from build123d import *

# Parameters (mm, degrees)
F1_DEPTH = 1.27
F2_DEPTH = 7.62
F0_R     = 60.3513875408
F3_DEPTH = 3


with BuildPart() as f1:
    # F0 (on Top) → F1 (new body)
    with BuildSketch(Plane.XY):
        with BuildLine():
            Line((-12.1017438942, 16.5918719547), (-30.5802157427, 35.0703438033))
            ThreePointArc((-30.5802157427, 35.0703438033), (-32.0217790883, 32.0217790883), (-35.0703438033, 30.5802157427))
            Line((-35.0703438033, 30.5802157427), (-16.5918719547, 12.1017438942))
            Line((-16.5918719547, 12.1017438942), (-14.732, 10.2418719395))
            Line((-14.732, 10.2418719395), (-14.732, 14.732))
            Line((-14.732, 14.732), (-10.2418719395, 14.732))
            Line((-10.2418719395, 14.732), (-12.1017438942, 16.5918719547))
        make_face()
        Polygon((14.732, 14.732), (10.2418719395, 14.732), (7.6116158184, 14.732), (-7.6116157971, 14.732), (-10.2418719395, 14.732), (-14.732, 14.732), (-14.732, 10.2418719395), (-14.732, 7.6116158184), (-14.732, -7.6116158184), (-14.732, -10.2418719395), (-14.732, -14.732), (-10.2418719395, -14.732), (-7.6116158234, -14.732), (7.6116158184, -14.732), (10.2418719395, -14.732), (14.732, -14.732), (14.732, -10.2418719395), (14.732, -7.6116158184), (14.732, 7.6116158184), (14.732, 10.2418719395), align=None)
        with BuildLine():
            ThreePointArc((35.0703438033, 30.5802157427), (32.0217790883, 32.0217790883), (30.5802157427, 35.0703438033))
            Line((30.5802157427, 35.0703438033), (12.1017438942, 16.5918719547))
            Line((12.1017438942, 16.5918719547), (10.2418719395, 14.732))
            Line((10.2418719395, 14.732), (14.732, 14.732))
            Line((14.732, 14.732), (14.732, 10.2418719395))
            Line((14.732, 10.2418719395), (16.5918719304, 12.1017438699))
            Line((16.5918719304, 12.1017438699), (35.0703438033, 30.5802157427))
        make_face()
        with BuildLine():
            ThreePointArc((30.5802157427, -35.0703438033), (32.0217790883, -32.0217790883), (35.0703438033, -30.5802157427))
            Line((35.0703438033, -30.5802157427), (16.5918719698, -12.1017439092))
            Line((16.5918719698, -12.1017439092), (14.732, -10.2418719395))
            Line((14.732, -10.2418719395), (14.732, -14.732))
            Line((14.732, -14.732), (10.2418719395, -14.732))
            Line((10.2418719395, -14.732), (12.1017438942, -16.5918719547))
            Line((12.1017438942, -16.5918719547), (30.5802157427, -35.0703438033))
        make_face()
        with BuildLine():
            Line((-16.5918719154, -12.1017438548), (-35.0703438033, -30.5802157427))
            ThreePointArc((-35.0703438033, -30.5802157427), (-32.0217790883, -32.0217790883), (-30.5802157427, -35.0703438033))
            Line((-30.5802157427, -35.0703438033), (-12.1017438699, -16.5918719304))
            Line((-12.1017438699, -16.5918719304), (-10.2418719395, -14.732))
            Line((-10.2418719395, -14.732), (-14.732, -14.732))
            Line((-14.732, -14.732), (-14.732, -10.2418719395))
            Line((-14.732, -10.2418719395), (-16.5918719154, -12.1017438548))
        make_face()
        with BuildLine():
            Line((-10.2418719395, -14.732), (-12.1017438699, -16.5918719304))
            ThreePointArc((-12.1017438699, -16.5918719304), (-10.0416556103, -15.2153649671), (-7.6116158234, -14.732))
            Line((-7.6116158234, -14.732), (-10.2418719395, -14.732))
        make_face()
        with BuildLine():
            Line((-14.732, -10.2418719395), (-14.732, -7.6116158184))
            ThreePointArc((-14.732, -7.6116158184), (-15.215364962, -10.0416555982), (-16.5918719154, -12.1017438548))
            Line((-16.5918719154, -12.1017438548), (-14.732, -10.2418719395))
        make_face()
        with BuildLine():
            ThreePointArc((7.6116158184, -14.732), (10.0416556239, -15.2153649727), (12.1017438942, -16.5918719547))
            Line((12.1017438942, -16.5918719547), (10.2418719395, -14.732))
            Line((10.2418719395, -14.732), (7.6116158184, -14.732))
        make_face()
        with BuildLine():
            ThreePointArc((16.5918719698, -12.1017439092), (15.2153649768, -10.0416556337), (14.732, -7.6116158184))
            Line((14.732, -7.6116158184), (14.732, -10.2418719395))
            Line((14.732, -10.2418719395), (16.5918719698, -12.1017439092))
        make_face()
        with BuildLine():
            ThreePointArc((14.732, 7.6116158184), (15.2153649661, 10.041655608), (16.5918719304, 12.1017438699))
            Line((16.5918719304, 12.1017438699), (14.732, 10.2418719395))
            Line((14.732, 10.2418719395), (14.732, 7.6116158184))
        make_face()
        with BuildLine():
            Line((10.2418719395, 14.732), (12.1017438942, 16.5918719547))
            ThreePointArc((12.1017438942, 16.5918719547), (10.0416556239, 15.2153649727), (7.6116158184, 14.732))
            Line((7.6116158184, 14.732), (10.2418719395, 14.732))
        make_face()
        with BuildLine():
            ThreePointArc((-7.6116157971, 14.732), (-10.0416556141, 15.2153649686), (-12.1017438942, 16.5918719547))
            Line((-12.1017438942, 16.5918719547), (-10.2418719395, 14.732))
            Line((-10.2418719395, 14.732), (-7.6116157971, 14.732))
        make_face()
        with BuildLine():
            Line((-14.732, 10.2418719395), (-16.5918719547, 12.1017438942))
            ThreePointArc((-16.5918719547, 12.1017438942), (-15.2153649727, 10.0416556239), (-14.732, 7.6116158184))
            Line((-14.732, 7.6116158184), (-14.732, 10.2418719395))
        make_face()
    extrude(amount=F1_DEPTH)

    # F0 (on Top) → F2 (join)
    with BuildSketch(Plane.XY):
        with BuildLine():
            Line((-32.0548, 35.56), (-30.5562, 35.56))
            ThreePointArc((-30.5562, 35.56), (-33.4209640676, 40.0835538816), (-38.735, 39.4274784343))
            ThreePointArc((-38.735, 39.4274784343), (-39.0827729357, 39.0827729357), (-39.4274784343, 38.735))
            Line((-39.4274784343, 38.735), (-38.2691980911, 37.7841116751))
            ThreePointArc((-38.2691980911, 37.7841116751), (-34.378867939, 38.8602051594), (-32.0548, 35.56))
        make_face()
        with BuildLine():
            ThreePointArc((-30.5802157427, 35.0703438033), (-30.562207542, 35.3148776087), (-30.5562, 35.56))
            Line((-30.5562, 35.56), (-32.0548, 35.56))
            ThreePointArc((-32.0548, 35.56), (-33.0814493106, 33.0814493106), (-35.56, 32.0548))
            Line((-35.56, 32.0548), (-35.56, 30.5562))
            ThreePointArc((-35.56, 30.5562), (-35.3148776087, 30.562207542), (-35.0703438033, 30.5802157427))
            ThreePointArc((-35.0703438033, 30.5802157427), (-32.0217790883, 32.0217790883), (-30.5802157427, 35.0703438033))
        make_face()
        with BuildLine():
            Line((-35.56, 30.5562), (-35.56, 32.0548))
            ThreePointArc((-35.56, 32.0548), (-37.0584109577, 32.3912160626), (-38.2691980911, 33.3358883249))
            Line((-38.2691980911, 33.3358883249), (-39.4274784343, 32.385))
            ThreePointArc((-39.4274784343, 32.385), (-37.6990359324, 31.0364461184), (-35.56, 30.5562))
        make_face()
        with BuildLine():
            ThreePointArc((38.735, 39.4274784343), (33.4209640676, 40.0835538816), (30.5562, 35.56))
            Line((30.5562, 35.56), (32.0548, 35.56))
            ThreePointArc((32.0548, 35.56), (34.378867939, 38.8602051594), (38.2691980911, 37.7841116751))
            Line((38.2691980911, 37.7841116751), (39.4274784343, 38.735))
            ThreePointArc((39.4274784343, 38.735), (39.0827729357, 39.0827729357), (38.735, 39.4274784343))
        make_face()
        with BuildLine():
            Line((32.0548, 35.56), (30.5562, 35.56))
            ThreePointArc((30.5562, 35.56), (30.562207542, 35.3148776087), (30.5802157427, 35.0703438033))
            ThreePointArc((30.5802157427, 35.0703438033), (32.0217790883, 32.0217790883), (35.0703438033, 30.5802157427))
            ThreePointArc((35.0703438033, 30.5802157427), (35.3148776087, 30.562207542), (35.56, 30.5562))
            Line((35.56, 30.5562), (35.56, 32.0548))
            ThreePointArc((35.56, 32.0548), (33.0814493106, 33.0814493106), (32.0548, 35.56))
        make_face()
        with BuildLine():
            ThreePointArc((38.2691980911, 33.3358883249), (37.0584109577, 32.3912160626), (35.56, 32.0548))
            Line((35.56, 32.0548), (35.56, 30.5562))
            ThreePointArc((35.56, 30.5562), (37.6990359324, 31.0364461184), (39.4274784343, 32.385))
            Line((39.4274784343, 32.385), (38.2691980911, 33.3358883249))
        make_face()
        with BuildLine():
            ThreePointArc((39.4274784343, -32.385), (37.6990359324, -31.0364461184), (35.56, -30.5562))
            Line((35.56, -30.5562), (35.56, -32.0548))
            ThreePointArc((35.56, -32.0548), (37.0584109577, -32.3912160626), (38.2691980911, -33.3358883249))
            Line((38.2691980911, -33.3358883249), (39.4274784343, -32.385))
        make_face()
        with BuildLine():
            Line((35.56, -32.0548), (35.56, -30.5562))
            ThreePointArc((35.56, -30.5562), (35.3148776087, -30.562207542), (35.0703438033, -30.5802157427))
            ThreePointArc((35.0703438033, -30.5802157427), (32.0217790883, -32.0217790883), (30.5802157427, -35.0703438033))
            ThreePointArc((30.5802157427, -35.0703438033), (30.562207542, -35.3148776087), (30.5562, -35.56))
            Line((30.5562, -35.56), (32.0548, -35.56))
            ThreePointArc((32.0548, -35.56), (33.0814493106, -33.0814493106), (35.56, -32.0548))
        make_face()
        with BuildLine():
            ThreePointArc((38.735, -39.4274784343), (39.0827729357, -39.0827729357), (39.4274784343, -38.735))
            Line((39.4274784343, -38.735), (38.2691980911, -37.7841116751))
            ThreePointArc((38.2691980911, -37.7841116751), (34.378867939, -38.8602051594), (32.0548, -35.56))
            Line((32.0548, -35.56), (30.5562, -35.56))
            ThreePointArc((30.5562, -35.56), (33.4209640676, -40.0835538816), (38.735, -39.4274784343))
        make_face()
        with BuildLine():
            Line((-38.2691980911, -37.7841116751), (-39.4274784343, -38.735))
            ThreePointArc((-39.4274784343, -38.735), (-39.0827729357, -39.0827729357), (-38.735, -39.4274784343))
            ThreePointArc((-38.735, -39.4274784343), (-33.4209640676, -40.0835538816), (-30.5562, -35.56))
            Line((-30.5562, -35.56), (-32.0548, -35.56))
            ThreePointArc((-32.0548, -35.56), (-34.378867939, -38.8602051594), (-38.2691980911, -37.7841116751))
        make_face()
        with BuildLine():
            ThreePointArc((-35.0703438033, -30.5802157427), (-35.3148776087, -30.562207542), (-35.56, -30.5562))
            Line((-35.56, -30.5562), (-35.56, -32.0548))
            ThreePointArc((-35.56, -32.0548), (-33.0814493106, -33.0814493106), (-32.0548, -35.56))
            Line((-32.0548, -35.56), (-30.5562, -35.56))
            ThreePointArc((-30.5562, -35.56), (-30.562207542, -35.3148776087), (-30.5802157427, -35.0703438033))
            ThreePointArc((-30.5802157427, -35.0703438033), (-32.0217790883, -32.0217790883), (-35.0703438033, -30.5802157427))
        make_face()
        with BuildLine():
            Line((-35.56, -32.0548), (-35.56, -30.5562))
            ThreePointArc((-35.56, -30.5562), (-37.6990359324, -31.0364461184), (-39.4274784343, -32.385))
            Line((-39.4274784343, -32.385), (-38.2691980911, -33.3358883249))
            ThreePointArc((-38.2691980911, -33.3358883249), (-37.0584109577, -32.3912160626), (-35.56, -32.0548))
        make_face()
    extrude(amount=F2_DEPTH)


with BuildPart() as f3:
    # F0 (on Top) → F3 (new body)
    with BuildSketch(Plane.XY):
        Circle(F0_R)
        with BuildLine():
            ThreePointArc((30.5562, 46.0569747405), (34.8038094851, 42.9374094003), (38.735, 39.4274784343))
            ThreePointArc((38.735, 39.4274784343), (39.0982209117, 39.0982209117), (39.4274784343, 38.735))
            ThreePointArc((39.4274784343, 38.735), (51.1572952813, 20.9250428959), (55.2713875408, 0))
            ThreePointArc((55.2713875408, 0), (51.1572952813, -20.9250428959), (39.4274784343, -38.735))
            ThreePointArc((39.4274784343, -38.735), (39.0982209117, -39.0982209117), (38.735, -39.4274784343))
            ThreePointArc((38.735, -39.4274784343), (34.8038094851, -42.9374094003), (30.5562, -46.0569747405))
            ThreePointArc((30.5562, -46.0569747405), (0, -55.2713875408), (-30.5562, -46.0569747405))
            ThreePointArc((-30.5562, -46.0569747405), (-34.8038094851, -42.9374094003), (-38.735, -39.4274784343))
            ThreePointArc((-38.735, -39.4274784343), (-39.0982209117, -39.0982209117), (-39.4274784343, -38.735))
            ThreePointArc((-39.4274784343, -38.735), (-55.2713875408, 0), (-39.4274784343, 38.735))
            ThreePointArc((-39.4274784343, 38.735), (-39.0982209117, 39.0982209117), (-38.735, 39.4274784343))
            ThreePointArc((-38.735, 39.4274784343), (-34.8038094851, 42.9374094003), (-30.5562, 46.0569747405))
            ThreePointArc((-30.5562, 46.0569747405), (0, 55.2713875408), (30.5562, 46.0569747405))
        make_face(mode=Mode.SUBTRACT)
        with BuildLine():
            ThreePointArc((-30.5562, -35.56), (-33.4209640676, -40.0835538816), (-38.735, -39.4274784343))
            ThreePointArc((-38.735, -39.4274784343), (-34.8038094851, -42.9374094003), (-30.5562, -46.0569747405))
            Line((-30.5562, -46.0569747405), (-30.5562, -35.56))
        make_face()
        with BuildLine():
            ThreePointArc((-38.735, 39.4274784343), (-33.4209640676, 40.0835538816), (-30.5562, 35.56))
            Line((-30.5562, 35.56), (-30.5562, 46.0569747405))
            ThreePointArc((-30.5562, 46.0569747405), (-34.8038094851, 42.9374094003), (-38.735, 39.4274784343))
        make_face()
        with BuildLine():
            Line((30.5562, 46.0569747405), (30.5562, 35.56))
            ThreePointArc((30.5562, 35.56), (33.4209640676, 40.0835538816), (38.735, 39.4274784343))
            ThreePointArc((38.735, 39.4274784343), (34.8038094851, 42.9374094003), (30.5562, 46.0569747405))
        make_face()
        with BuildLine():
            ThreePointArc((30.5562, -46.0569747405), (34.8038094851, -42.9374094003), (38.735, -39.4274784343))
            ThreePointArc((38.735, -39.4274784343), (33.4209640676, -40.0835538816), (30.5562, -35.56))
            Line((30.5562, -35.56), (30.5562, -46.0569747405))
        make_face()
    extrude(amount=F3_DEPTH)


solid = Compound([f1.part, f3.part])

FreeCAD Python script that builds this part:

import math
import FreeCAD as App
import Part
import Sketcher
Q = App.Units.Quantity

doc = App.newDocument("Part")
params = doc.addObject("Spreadsheet::Sheet", "Params")
for row, (alias, value) in enumerate([
    ("sketch1_radius", "0.25 in"),
    ("sketch1_radius2", "0.197 in"),
    ("pad1_length", "0.05 in"),
    ("sketch2_radius", "0.197 in"),
    ("sketch2_radius2", "0.138 in"),
    ("pad2_length", "0.3 in"),
    ("sketch3_radius", "0.197 in"),
    ("pad3_length", "3 mm"),
], start=1):
    params.set(f"A{row}", alias)
    params.set(f"B{row}", "=" + value)
    params.setAlias(f"B{row}", alias)

body = doc.addObject("PartDesign::Body", "Body")

# Sketch on XY plane
sketch1 = body.newObject("Sketcher::SketchObject", "Sketch")
sketch1.AttachmentSupport = (doc.getObject("XY_Plane"), [""])
sketch1.MapMode = "FlatFace"
sketch1.addGeometry([
    Part.LineSegment(App.Vector(-12.101744, 16.591872, 0), App.Vector(-30.580216, 35.070344, 0)),  # 0
    Part.ArcOfCircle(Part.Circle(App.Vector(-35.56, 35.56, 0), App.Vector(0, 0, 1), 5.0038), math.radians(-84.384227), math.radians(-5.615773)),  # 1
    Part.LineSegment(App.Vector(-35.070344, 30.580216, 0), App.Vector(-16.591872, 12.101744, 0)),  # 2
    Part.ArcOfCircle(Part.Circle(App.Vector(-21.082, 7.611616, 0), App.Vector(0, 0, 1), 6.35), math.radians(0), math.radians(45)),  # 3
    Part.LineSegment(App.Vector(-14.732, 7.611616, 0), App.Vector(-14.732, -7.611616, 0)),  # 4
    Part.ArcOfCircle(Part.Circle(App.Vector(-21.082, -7.611616, 0), App.Vector(0, 0, 1), 6.35), math.radians(-45), math.radians(0)),  # 5
    Part.LineSegment(App.Vector(-16.591872, -12.101744, 0), App.Vector(-35.070344, -30.580216, 0)),  # 6
    Part.ArcOfCircle(Part.Circle(App.Vector(-35.56, -35.56, 0), App.Vector(0, 0, 1), 5.0038), math.radians(5.615773), math.radians(84.384227)),  # 7
    Part.LineSegment(App.Vector(-30.580216, -35.070344, 0), App.Vector(-12.101744, -16.591872, 0)),  # 8
    Part.ArcOfCircle(Part.Circle(App.Vector(-7.611616, -21.082, 0), App.Vector(0, 0, 1), 6.35), math.radians(90), math.radians(135)),  # 9
    Part.LineSegment(App.Vector(-7.611616, -14.732, 0), App.Vector(7.611616, -14.732, 0)),  # 10
    Part.ArcOfCircle(Part.Circle(App.Vector(7.611616, -21.082, 0), App.Vector(0, 0, 1), 6.35), math.radians(45), math.radians(90)),  # 11
    Part.LineSegment(App.Vector(12.101744, -16.591872, 0), App.Vector(30.580216, -35.070344, 0)),  # 12
    Part.ArcOfCircle(Part.Circle(App.Vector(35.56, -35.56, 0), App.Vector(0, 0, 1), 5.0038), math.radians(95.615773), math.radians(174.384227)),  # 13
    Part.LineSegment(App.Vector(35.070344, -30.580216, 0), App.Vector(16.591872, -12.101744, 0)),  # 14
    Part.ArcOfCircle(Part.Circle(App.Vector(21.082, -7.611616, 0), App.Vector(0, 0, 1), 6.35), math.radians(180), math.radians(225)),  # 15
    Part.LineSegment(App.Vector(14.732, -7.611616, 0), App.Vector(14.732, 7.611616, 0)),  # 16
    Part.ArcOfCircle(Part.Circle(App.Vector(21.082, 7.611616, 0), App.Vector(0, 0, 1), 6.35), math.radians(135), math.radians(180)),  # 17
    Part.LineSegment(App.Vector(16.591872, 12.101744, 0), App.Vector(35.070344, 30.580216, 0)),  # 18
    Part.ArcOfCircle(Part.Circle(App.Vector(35.56, 35.56, 0), App.Vector(0, 0, 1), 5.0038), math.radians(-174.384227), math.radians(-95.615773)),  # 19
    Part.LineSegment(App.Vector(30.580216, 35.070344, 0), App.Vector(12.101744, 16.591872, 0)),  # 20
    Part.ArcOfCircle(Part.Circle(App.Vector(7.611616, 21.082, 0), App.Vector(0, 0, 1), 6.35), math.radians(-90), math.radians(-45)),  # 21
    Part.LineSegment(App.Vector(7.611616, 14.732, 0), App.Vector(-7.611616, 14.732, 0)),  # 22
    Part.ArcOfCircle(Part.Circle(App.Vector(-7.611616, 21.082, 0), App.Vector(0, 0, 1), 6.35), math.radians(-135), math.radians(-90)),  # 23
], False)
sketch1.addConstraint([
    Sketcher.Constraint("Coincident", 0, 2, 1, 2),
    Sketcher.Constraint("Coincident", 1, 1, 2, 1),
    Sketcher.Constraint("Tangent", 2, 2, 3, 2),
    Sketcher.Constraint("Tangent", 3, 1, 4, 1),
    Sketcher.Constraint("Tangent", 4, 2, 5, 2),
    Sketcher.Constraint("Tangent", 5, 1, 6, 1),
    Sketcher.Constraint("Coincident", 6, 2, 7, 2),
    Sketcher.Constraint("Coincident", 7, 1, 8, 1),
    Sketcher.Constraint("Tangent", 8, 2, 9, 2),
    Sketcher.Constraint("Tangent", 9, 1, 10, 1),
    Sketcher.Constraint("Tangent", 10, 2, 11, 2),
    Sketcher.Constraint("Tangent", 11, 1, 12, 1),
    Sketcher.Constraint("Coincident", 12, 2, 13, 2),
    Sketcher.Constraint("Coincident", 13, 1, 14, 1),
    Sketcher.Constraint("Tangent", 14, 2, 15, 2),
    Sketcher.Constraint("Tangent", 15, 1, 16, 1),
    Sketcher.Constraint("Tangent", 16, 2, 17, 2),
    Sketcher.Constraint("Tangent", 17, 1, 18, 1),
    Sketcher.Constraint("Coincident", 18, 2, 19, 2),
    Sketcher.Constraint("Coincident", 19, 1, 20, 1),
    Sketcher.Constraint("Tangent", 20, 2, 21, 2),
    Sketcher.Constraint("Tangent", 21, 1, 22, 1),
    Sketcher.Constraint("Tangent", 22, 2, 23, 2),
    Sketcher.Constraint("Tangent", 23, 1, 0, 1),
    Sketcher.Constraint("Vertical", 4),
    Sketcher.Constraint("Horizontal", 10),
    Sketcher.Constraint("Vertical", 16),
    Sketcher.Constraint("Horizontal", 22),
    Sketcher.Constraint("Equal", 3, 5),
    Sketcher.Constraint("Equal", 1, 7),
    Sketcher.Constraint("Equal", 5, 9),
    Sketcher.Constraint("Equal", 9, 11),
    Sketcher.Constraint("Equal", 7, 13),
    Sketcher.Constraint("Equal", 11, 15),
    Sketcher.Constraint("Equal", 15, 17),
    Sketcher.Constraint("Equal", 13, 19),
    Sketcher.Constraint("Equal", 17, 21),
    Sketcher.Constraint("Equal", 21, 23),
    Sketcher.Constraint("Symmetric", 1, 3, 13, 3, -1, 1),
    Sketcher.Constraint("Symmetric", 3, 3, 15, 3, -1, 1),
    Sketcher.Constraint("Symmetric", 7, 3, 19, 3, -1, 1),
    Sketcher.Constraint("Symmetric", 9, 3, 21, 3, -1, 1),
    Sketcher.Constraint("Symmetric", 5, 1, 17, 1, -1, 1),
    Sketcher.Constraint("Symmetric", 11, 1, 23, 1, -1, 1),
    Sketcher.Constraint("Symmetric", 7, 3, 13, 3, -2),
    Sketcher.Constraint("Symmetric", 8, 2, 11, 1, -2),
    Sketcher.Constraint("Symmetric", 5, 1, 14, 2, -2),
    Sketcher.Constraint("Parallel", 0, 2),
    Sketcher.Constraint("Perpendicular", 2, 6),
    Sketcher.Constraint("Parallel", 6, 8),
    Sketcher.Constraint("Parallel", 18, 20),
    Sketcher.Constraint("Equal", 22, 4),
    Sketcher.Constraint("Equal", 0, 2),
    Sketcher.Constraint("Radius", 3, Q("0.25 in")),
    Sketcher.Constraint("Radius", 1, Q("0.197 in")),
    Sketcher.Constraint("DistanceX", 1, 3, -1, 1, Q("1.4 in")),
    Sketcher.Constraint("DistanceY", -1, 1, 1, 3, Q("1.4 in")),
    Sketcher.Constraint("DistanceX", 3, 3, -1, 1, Q("0.83 in")),
    Sketcher.Constraint("DistanceX", 10, 1, 10, 2, 15.223232),
])
sketch1.setExpression("Constraints[53]", "Params.sketch1_radius")
sketch1.setExpression("Constraints[54]", "Params.sketch1_radius2")
pad1 = body.newObject("PartDesign::Pad", "Pad")
pad1.Profile = sketch1
pad1.setExpression("Length", "Params.pad1_length")

# Sketch on XY plane
sketch2 = body.newObject("Sketcher::SketchObject", "Sketch001")
sketch2.AttachmentSupport = (doc.getObject("XY_Plane"), [""])
sketch2.MapMode = "FlatFace"
sketch2.addGeometry([
    Part.ArcOfCircle(Part.Circle(App.Vector(-35.56, 35.56, 0), App.Vector(0, 0, 1), 5.0038), math.radians(0), math.radians(129.384227)),  # 0
    Part.ArcOfCircle(Part.Circle(App.Vector(0, 0, 0), App.Vector(0, 0, 1), 55.271388), math.radians(134.492403), math.radians(135.507597)),  # 1
    Part.LineSegment(App.Vector(-39.427478, 38.735, 0), App.Vector(-38.269198, 37.784112, 0)),  # 2
    Part.ArcOfCircle(Part.Circle(App.Vector(-35.56, 35.56, 0), App.Vector(0, 0, 1), 3.5052), math.radians(0), math.radians(140.615773)),  # 3
    Part.ArcOfCircle(Part.Circle(App.Vector(-35.56, 35.56, 0), App.Vector(0, 0, 1), 3.5052), math.radians(-90), math.radians(0)),  # 4
    Part.ArcOfCircle(Part.Circle(App.Vector(-35.56, 35.56, 0), App.Vector(0, 0, 1), 3.5052), math.radians(-140.615773), math.radians(-90)),  # 5
    Part.LineSegment(App.Vector(-38.269198, 33.335888, 0), App.Vector(-39.427478, 32.385, 0)),  # 6
    Part.ArcOfCircle(Part.Circle(App.Vector(-35.56, 35.56, 0), App.Vector(0, 0, 1), 5.0038), math.radians(-140.615773), math.radians(-90)),  # 7
    Part.ArcOfCircle(Part.Circle(App.Vector(-35.56, 35.56, 0), App.Vector(0, 0, 1), 5.0038), math.radians(-90), math.radians(-84.384227)),  # 8
    Part.ArcOfCircle(Part.Circle(App.Vector(-35.56, 35.56, 0), App.Vector(0, 0, 1), 5.0038), math.radians(-84.384227), math.radians(-5.615773)),  # 9
    Part.ArcOfCircle(Part.Circle(App.Vector(-35.56, 35.56, 0), App.Vector(0, 0, 1), 5.0038), math.radians(-5.615773), math.radians(0)),  # 10
    Part.ArcOfCircle(Part.Circle(App.Vector(35.56, 35.56, 0), App.Vector(0, 0, 1), 5.0038), math.radians(50.615773), math.radians(180)),  # 11
    Part.ArcOfCircle(Part.Circle(App.Vector(35.56, 35.56, 0), App.Vector(0, 0, 1), 5.0038), math.radians(180), math.radians(185.615773)),  # 12
    Part.ArcOfCircle(Part.Circle(App.Vector(35.56, 35.56, 0), App.Vector(0, 0, 1), 5.0038), math.radians(-174.384227), math.radians(-95.615773)),  # 13
    Part.ArcOfCircle(Part.Circle(App.Vector(35.56, 35.56, 0), App.Vector(0, 0, 1), 5.0038), math.radians(-95.615773), math.radians(-90)),  # 14
    Part.ArcOfCircle(Part.Circle(App.Vector(35.56, 35.56, 0), App.Vector(0, 0, 1), 5.0038), math.radians(-90), math.radians(-39.384227)),  # 15
    Part.LineSegment(App.Vector(39.427478, 32.385, 0), App.Vector(38.269198, 33.335888, 0)),  # 16
    Part.ArcOfCircle(Part.Circle(App.Vector(35.56, 35.56, 0), App.Vector(0, 0, 1), 3.5052), math.radians(-90), math.radians(-39.384227)),  # 17
    Part.ArcOfCircle(Part.Circle(App.Vector(35.56, 35.56, 0), App.Vector(0, 0, 1), 3.5052), math.radians(180), math.radians(270)),  # 18
    Part.ArcOfCircle(Part.Circle(App.Vector(35.56, 35.56, 0), App.Vector(0, 0, 1), 3.5052), math.radians(39.384227), math.radians(180)),  # 19
    Part.LineSegment(App.Vector(38.269198, 37.784112, 0), App.Vector(39.427478, 38.735, 0)),  # 20
    Part.ArcOfCircle(Part.Circle(App.Vector(0, 0, 0), App.Vector(0, 0, 1), 55.271388), math.radians(44.492403), math.radians(45.507597)),  # 21
    Part.ArcOfCircle(Part.Circle(App.Vector(35.56, -35.56, 0), App.Vector(0, 0, 1), 5.0038), math.radians(39.384227), math.radians(90)),  # 22
    Part.ArcOfCircle(Part.Circle(App.Vector(35.56, -35.56, 0), App.Vector(0, 0, 1), 5.0038), math.radians(90), math.radians(95.615773)),  # 23
    Part.ArcOfCircle(Part.Circle(App.Vector(35.56, -35.56, 0), App.Vector(0, 0, 1), 5.0038), math.radians(95.615773), math.radians(174.384227)),  # 24
    Part.ArcOfCircle(Part.Circle(App.Vector(35.56, -35.56, 0), App.Vector(0, 0, 1), 5.0038), math.radians(174.384227), math.radians(180)),  # 25
    Part.ArcOfCircle(Part.Circle(App.Vector(35.56, -35.56, 0), App.Vector(0, 0, 1), 5.0038), math.radians(180), math.radians(309.384227)),  # 26
    Part.ArcOfCircle(Part.Circle(App.Vector(0, 0, 0), App.Vector(0, 0, 1), 55.271388), math.radians(-45.507597), math.radians(-44.492403)),  # 27
    Part.LineSegment(App.Vector(39.427478, -38.735, 0), App.Vector(38.269198, -37.784112, 0)),  # 28
    Part.ArcOfCircle(Part.Circle(App.Vector(35.56, -35.56, 0), App.Vector(0, 0, 1), 3.5052), math.radians(180), math.radians(320.615773)),  # 29
    Part.ArcOfCircle(Part.Circle(App.Vector(35.56, -35.56, 0), App.Vector(0, 0, 1), 3.5052), math.radians(90), math.radians(180)),  # 30
    Part.ArcOfCircle(Part.Circle(App.Vector(35.56, -35.56, 0), App.Vector(0, 0, 1), 3.5052), math.radians(39.384227), math.radians(90)),  # 31
    Part.LineSegment(App.Vector(38.269198, -33.335888, 0), App.Vector(39.427478, -32.385, 0)),  # 32
    Part.LineSegment(App.Vector(-38.269198, -37.784112, 0), App.Vector(-39.427478, -38.735, 0)),  # 33
    Part.ArcOfCircle(Part.Circle(App.Vector(0, 0, 0), App.Vector(0, 0, 1), 55.271388), math.radians(-135.507597), math.radians(-134.492403)),  # 34
    Part.ArcOfCircle(Part.Circle(App.Vector(-35.56, -35.56, 0), App.Vector(0, 0, 1), 5.0038), math.radians(-129.384227), math.radians(0)),  # 35
    Part.ArcOfCircle(Part.Circle(App.Vector(-35.56, -35.56, 0), App.Vector(0, 0, 1), 5.0038), math.radians(0), math.radians(5.615773)),  # 36
    Part.ArcOfCircle(Part.Circle(App.Vector(-35.56, -35.56, 0), App.Vector(0, 0, 1), 5.0038), math.radians(5.615773), math.radians(84.384227)),  # 37
    Part.ArcOfCircle(Part.Circle(App.Vector(-35.56, -35.56, 0), App.Vector(0, 0, 1), 5.0038), math.radians(84.384227), math.radians(90)),  # 38
    Part.ArcOfCircle(Part.Circle(App.Vector(-35.56, -35.56, 0), App.Vector(0, 0, 1), 5.0038), math.radians(90), math.radians(140.615773)),  # 39
    Part.LineSegment(App.Vector(-39.427478, -32.385, 0), App.Vector(-38.269198, -33.335888, 0)),  # 40
    Part.ArcOfCircle(Part.Circle(App.Vector(-35.56, -35.56, 0), App.Vector(0, 0, 1), 3.5052), math.radians(90), math.radians(140.615773)),  # 41
    Part.ArcOfCircle(Part.Circle(App.Vector(-35.56, -35.56, 0), App.Vector(0, 0, 1), 3.5052), math.radians(0), math.radians(90)),  # 42
    Part.ArcOfCircle(Part.Circle(App.Vector(-35.56, -35.56, 0), App.Vector(0, 0, 1), 3.5052), math.radians(-140.615773), math.radians(0)),  # 43
], False)
sketch2.addConstraint([
    Sketcher.Constraint("Coincident", 0, 2, 1, 1),
    Sketcher.Constraint("Coincident", 1, 2, 2, 1),
    Sketcher.Constraint("Coincident", 2, 2, 3, 2),
    Sketcher.Constraint("Tangent", 3, 1, 4, 2),
    Sketcher.Constraint("Tangent", 4, 1, 5, 2),
    Sketcher.Constraint("Coincident", 5, 1, 6, 1),
    Sketcher.Constraint("Coincident", 6, 2, 7, 1),
    Sketcher.Constraint("Tangent", 7, 2, 8, 1),
    Sketcher.Constraint("Tangent", 8, 2, 9, 1),
    Sketcher.Constraint("Tangent", 9, 2, 10, 1),
    Sketcher.Constraint("Tangent", 10, 2, 0, 1),
    Sketcher.Constraint("Tangent", 11, 2, 12, 1),
    Sketcher.Constraint("Tangent", 12, 2, 13, 1),
    Sketcher.Constraint("Tangent", 13, 2, 14, 1),
    Sketcher.Constraint("Tangent", 14, 2, 15, 1),
    Sketcher.Constraint("Coincident", 15, 2, 16, 1),
    Sketcher.Constraint("Coincident", 16, 2, 17, 2),
    Sketcher.Constraint("Tangent", 17, 1, 18, 2),
    Sketcher.Constraint("Tangent", 18, 1, 19, 2),
    Sketcher.Constraint("Coincident", 19, 1, 20, 1),
    Sketcher.Constraint("Coincident", 20, 2, 21, 1),
    Sketcher.Constraint("Coincident", 21, 2, 11, 1),
    Sketcher.Constraint("Tangent", 22, 2, 23, 1),
    Sketcher.Constraint("Tangent", 23, 2, 24, 1),
    Sketcher.Constraint("Tangent", 24, 2, 25, 1),
    Sketcher.Constraint("Tangent", 25, 2, 26, 1),
    Sketcher.Constraint("Coincident", 26, 2, 27, 1),
    Sketcher.Constraint("Coincident", 27, 2, 28, 1),
    Sketcher.Constraint("Coincident", 28, 2, 29, 2),
    Sketcher.Constraint("Tangent", 29, 1, 30, 2),
    Sketcher.Constraint("Tangent", 30, 1, 31, 2),
    Sketcher.Constraint("Coincident", 31, 1, 32, 1),
    Sketcher.Constraint("Coincident", 32, 2, 22, 1),
    Sketcher.Constraint("Coincident", 33, 2, 34, 1),
    Sketcher.Constraint("Coincident", 34, 2, 35, 1),
    Sketcher.Constraint("Tangent", 35, 2, 36, 1),
    Sketcher.Constraint("Tangent", 36, 2, 37, 1),
    Sketcher.Constraint("Tangent", 37, 2, 38, 1),
    Sketcher.Constraint("Tangent", 38, 2, 39, 1),
    Sketcher.Constraint("Coincident", 39, 2, 40, 1),
    Sketcher.Constraint("Coincident", 40, 2, 41, 2),
    Sketcher.Constraint("Tangent", 41, 1, 42, 2),
    Sketcher.Constraint("Tangent", 42, 1, 43, 2),
    Sketcher.Constraint("Coincident", 43, 1, 33, 1),
    Sketcher.Constraint("Coincident", 1, 3, -1, 1),
    Sketcher.Constraint("Coincident", 21, 3, -1, 1),
    Sketcher.Constraint("Coincident", 27, 3, -1, 1),
    Sketcher.Constraint("Coincident", 34, 3, -1, 1),
    Sketcher.Constraint("Coincident", 3, 3, 0, 3),
    Sketcher.Constraint("Coincident", 5, 3, 0, 3),
    Sketcher.Constraint("Coincident", 7, 3, 0, 3),
    Sketcher.Constraint("Coincident", 9, 3, 0, 3),
    Sketcher.Constraint("Coincident", 13, 3, 11, 3),
    Sketcher.Constraint("Coincident", 15, 3, 11, 3),
    Sketcher.Constraint("Coincident", 17, 3, 11, 3),
    Sketcher.Constraint("Coincident", 19, 3, 11, 3),
    Sketcher.Constraint("Coincident", 24, 3, 22, 3),
    Sketcher.Constraint("Coincident", 26, 3, 22, 3),
    Sketcher.Constraint("Coincident", 29, 3, 22, 3),
    Sketcher.Constraint("Coincident", 31, 3, 22, 3),
    Sketcher.Constraint("Coincident", 37, 3, 35, 3),
    Sketcher.Constraint("Coincident", 39, 3, 35, 3),
    Sketcher.Constraint("Coincident", 41, 3, 35, 3),
    Sketcher.Constraint("Coincident", 43, 3, 35, 3),
    Sketcher.Constraint("Equal", 10, 11),
    Sketcher.Constraint("Equal", 5, 17),
    Sketcher.Constraint("Equal", 1, 21),
    Sketcher.Constraint("Equal", 15, 22),
    Sketcher.Constraint("Equal", 21, 27),
    Sketcher.Constraint("Equal", 19, 29),
    Sketcher.Constraint("Equal", 27, 34),
    Sketcher.Constraint("Equal", 26, 35),
    Sketcher.Constraint("Equal", 31, 41),
    Sketcher.Constraint("Symmetric", 0, 3, 22, 3, -1, 1),
    Sketcher.Constraint("Symmetric", 11, 3, 35, 3, -1, 1),
    Sketcher.Constraint("Symmetric", 0, 3, 11, 3, -2),
    Sketcher.Constraint("Parallel", 2, 16),
    Sketcher.Constraint("Parallel", 6, 20),
    Sketcher.Constraint("Parallel", 16, 28),
    Sketcher.Constraint("Parallel", 20, 32),
    Sketcher.Constraint("Parallel", 32, 33),
    Sketcher.Constraint("Parallel", 28, 40),
    Sketcher.Constraint("Horizontal", 19, 3, 3, 1),
    Sketcher.Constraint("Horizontal", 3, 1, 10, 2),
    Sketcher.Constraint("Horizontal", 10, 2, 11, 2),
    Sketcher.Constraint("Horizontal", 9, 2, 12, 2),
    Sketcher.Constraint("Horizontal", 8, 2, 13, 2),
    Sketcher.Constraint("Horizontal", 6, 2, 15, 2),
    Sketcher.Constraint("Horizontal", 5, 1, 16, 2),
    Sketcher.Constraint("Horizontal", 11, 2, 18, 1),
    Sketcher.Constraint("Horizontal", 2, 2, 19, 1),
    Sketcher.Constraint("Horizontal", 43, 3, 25, 2),
    Sketcher.Constraint("Horizontal", 25, 2, 29, 1),
    Sketcher.Constraint("Horizontal", 27, 2, 33, 2),
    Sketcher.Constraint("Horizontal", 29, 1, 35, 2),
    Sketcher.Constraint("Horizontal", 24, 2, 36, 2),
    Sketcher.Constraint("Horizontal", 23, 2, 37, 2),
    Sketcher.Constraint("Horizontal", 32, 2, 39, 2),
    Sketcher.Constraint("Horizontal", 35, 2, 42, 1),
    Sketcher.Constraint("Vertical", 43, 3, 4, 1),
    Sketcher.Constraint("Vertical", 2, 2, 5, 1),
    Sketcher.Constraint("Vertical", 1, 2, 6, 2),
    Sketcher.Constraint("Vertical", 4, 1, 7, 2),
    Sketcher.Constraint("Vertical", 31, 3, 14, 2),
    Sketcher.Constraint("Vertical", 14, 2, 17, 1),
    Sketcher.Constraint("Vertical", 17, 1, 22, 2),
    Sketcher.Constraint("Vertical", 13, 2, 23, 2),
    Sketcher.Constraint("Vertical", 12, 2, 24, 2),
    Sketcher.Constraint("Vertical", 20, 2, 27, 2),
    Sketcher.Constraint("Vertical", 22, 2, 30, 1),
    Sketcher.Constraint("Vertical", 28, 2, 31, 1),
    Sketcher.Constraint("Vertical", 7, 2, 38, 2),
    Sketcher.Constraint("Vertical", 38, 2, 41, 1),
    Sketcher.Constraint("Radius", 0, Q("0.197 in")),
    Sketcher.Constraint("Radius", 3, Q("0.138 in")),
    Sketcher.Constraint("DistanceX", 0, 3, -1, 1, Q("1.4 in")),
    Sketcher.Constraint("DistanceY", -1, 1, 0, 3, Q("1.4 in")),
    Sketcher.Constraint("DistanceX", 0, 2, -1, 1, Q("1.525 in")),
    Sketcher.Constraint("DistanceX", 2, 2, -1, 1, 38.269198),
    Sketcher.Constraint("DistanceX", 8, 2, -1, 1, 35.070344),
    Sketcher.Constraint("DistanceX", 9, 2, -1, 1, 30.580216),
])
sketch2.setExpression("Constraints[113]", "Params.sketch2_radius")
sketch2.setExpression("Constraints[114]", "Params.sketch2_radius2")
pad2 = body.newObject("PartDesign::Pad", "Pad001")
pad2.Profile = sketch2
pad2.setExpression("Length", "Params.pad2_length")
body2 = doc.addObject("PartDesign::Body", "Body001")

# Sketch on XY plane
sketch3 = body2.newObject("Sketcher::SketchObject", "Sketch002")
sketch3.AttachmentSupport = (doc.getObject("XY_Plane001"), [""])
sketch3.MapMode = "FlatFace"
sketch3.addGeometry([
    Part.Circle(App.Vector(0, 0, 0), App.Vector(0, 0, 1), 60.351388),  # 0
    Part.ArcOfCircle(Part.Circle(App.Vector(0, 0, 0), App.Vector(0, 0, 1), 55.271388), math.radians(56.437974), math.radians(123.562026)),  # 1
    Part.LineSegment(App.Vector(30.5562, 46.056975, 0), App.Vector(30.5562, 35.56, 0)),  # 2
    Part.ArcOfCircle(Part.Circle(App.Vector(35.56, 35.56, 0), App.Vector(0, 0, 1), 5.0038), math.radians(50.615773), math.radians(180)),  # 3
    Part.ArcOfCircle(Part.Circle(App.Vector(35.56, 35.56, 0), App.Vector(0, 0, 1), 5.0038), math.radians(39.384227), math.radians(50.615773)),  # 4
    Part.ArcOfCircle(Part.Circle(App.Vector(0, 0, 0), App.Vector(0, 0, 1), 55.271388), math.radians(0), math.radians(44.492403)),  # 5
    Part.ArcOfCircle(Part.Circle(App.Vector(0, 0, 0), App.Vector(0, 0, 1), 55.271388), math.radians(-44.492403), math.radians(0)),  # 6
    Part.ArcOfCircle(Part.Circle(App.Vector(35.56, -35.56, 0), App.Vector(0, 0, 1), 5.0038), math.radians(-50.615773), math.radians(-39.384227)),  # 7
    Part.ArcOfCircle(Part.Circle(App.Vector(35.56, -35.56, 0), App.Vector(0, 0, 1), 5.0038), math.radians(180), math.radians(309.384227)),  # 8
    Part.LineSegment(App.Vector(30.5562, -35.56, 0), App.Vector(30.5562, -46.056975, 0)),  # 9
    Part.ArcOfCircle(Part.Circle(App.Vector(0, 0, 0), App.Vector(0, 0, 1), 55.271388), math.radians(-123.562026), math.radians(-56.437974)),  # 10
    Part.LineSegment(App.Vector(-30.5562, -46.056975, 0), App.Vector(-30.5562, -35.56, 0)),  # 11
    Part.ArcOfCircle(Part.Circle(App.Vector(-35.56, -35.56, 0), App.Vector(0, 0, 1), 5.0038), math.radians(-129.384227), math.radians(0)),  # 12
    Part.ArcOfCircle(Part.Circle(App.Vector(-35.56, -35.56, 0), App.Vector(0, 0, 1), 5.0038), math.radians(-140.615773), math.radians(-129.384227)),  # 13
    Part.ArcOfCircle(Part.Circle(App.Vector(0, 0, 0), App.Vector(0, 0, 1), 55.271388), math.radians(135.507597), math.radians(224.492403)),  # 14
    Part.ArcOfCircle(Part.Circle(App.Vector(-35.56, 35.56, 0), App.Vector(0, 0, 1), 5.0038), math.radians(129.384227), math.radians(140.615773)),  # 15
    Part.ArcOfCircle(Part.Circle(App.Vector(-35.56, 35.56, 0), App.Vector(0, 0, 1), 5.0038), math.radians(0), math.radians(129.384227)),  # 16
    Part.LineSegment(App.Vector(-30.5562, 35.56, 0), App.Vector(-30.5562, 46.056975, 0)),  # 17
], False)
sketch3.addConstraint([
    Sketcher.Constraint("Coincident", 1, 1, 2, 1),
    Sketcher.Constraint("Tangent", 2, 2, 3, 2),
    Sketcher.Constraint("Tangent", 3, 1, 4, 2),
    Sketcher.Constraint("Coincident", 4, 1, 5, 2),
    Sketcher.Constraint("Tangent", 5, 1, 6, 2),
    Sketcher.Constraint("Coincident", 6, 1, 7, 2),
    Sketcher.Constraint("Tangent", 7, 1, 8, 2),
    Sketcher.Constraint("Tangent", 8, 1, 9, 1),
    Sketcher.Constraint("Coincident", 9, 2, 10, 2),
    Sketcher.Constraint("Coincident", 10, 1, 11, 1),
    Sketcher.Constraint("Tangent", 11, 2, 12, 2),
    Sketcher.Constraint("Tangent", 12, 1, 13, 2),
    Sketcher.Constraint("Coincident", 13, 1, 14, 2),
    Sketcher.Constraint("Coincident", 14, 1, 15, 2),
    Sketcher.Constraint("Tangent", 15, 1, 16, 2),
    Sketcher.Constraint("Tangent", 16, 1, 17, 1),
    Sketcher.Constraint("Coincident", 17, 2, 1, 2),
    Sketcher.Constraint("Vertical", 2),
    Sketcher.Constraint("Vertical", 9),
    Sketcher.Constraint("Vertical", 11),
    Sketcher.Constraint("Vertical", 17),
    Sketcher.Constraint("Coincident", 0, 3, -1, 1),
    Sketcher.Constraint("Coincident", 1, 3, -1, 1),
    Sketcher.Constraint("Coincident", 5, 3, -1, 1),
    Sketcher.Constraint("Coincident", 10, 3, -1, 1),
    Sketcher.Constraint("Coincident", 14, 3, -1, 1),
    Sketcher.Constraint("Equal", 3, 4),
    Sketcher.Constraint("Equal", 1, 5),
    Sketcher.Constraint("Equal", 5, 6),
    Sketcher.Constraint("Equal", 4, 7),
    Sketcher.Constraint("Equal", 7, 8),
    Sketcher.Constraint("Equal", 6, 10),
    Sketcher.Constraint("Equal", 8, 12),
    Sketcher.Constraint("Equal", 12, 13),
    Sketcher.Constraint("Equal", 10, 14),
    Sketcher.Constraint("Equal", 13, 15),
    Sketcher.Constraint("Equal", 15, 16),
    Sketcher.Constraint("Symmetric", 3, 3, 12, 3, -1, 1),
    Sketcher.Constraint("Symmetric", 7, 3, 15, 3, -1, 1),
    Sketcher.Constraint("Symmetric", 7, 3, 12, 3, -2),
    Sketcher.Constraint("PointOnObject", 5, 1, -1),
    Sketcher.Constraint("Horizontal", 7, 1, 12, 1),
    Sketcher.Constraint("Horizontal", 3, 1, 15, 1),
    Sketcher.Constraint("Vertical", 3, 1, 7, 1),
    Sketcher.Constraint("Radius", 3, Q("0.197 in")),
    Sketcher.Constraint("DistanceX", -1, 1, 3, 3, Q("1.4 in")),
    Sketcher.Constraint("DistanceY", -1, 1, 3, 3, Q("1.4 in")),
    Sketcher.Constraint("DistanceX", -1, 1, 3, 1, Q("1.525 in")),
    Sketcher.Constraint("DistanceY", -1, 1, 4, 1, Q("1.525 in")),
    Sketcher.Constraint("Diameter", 0, 120.702775),
])
sketch3.setExpression("Constraints[44]", "Params.sketch3_radius")
pad3 = body2.newObject("PartDesign::Pad", "Pad002")
pad3.Profile = sketch3
pad3.setExpression("Length", "Params.pad3_length")

doc.recompute()
